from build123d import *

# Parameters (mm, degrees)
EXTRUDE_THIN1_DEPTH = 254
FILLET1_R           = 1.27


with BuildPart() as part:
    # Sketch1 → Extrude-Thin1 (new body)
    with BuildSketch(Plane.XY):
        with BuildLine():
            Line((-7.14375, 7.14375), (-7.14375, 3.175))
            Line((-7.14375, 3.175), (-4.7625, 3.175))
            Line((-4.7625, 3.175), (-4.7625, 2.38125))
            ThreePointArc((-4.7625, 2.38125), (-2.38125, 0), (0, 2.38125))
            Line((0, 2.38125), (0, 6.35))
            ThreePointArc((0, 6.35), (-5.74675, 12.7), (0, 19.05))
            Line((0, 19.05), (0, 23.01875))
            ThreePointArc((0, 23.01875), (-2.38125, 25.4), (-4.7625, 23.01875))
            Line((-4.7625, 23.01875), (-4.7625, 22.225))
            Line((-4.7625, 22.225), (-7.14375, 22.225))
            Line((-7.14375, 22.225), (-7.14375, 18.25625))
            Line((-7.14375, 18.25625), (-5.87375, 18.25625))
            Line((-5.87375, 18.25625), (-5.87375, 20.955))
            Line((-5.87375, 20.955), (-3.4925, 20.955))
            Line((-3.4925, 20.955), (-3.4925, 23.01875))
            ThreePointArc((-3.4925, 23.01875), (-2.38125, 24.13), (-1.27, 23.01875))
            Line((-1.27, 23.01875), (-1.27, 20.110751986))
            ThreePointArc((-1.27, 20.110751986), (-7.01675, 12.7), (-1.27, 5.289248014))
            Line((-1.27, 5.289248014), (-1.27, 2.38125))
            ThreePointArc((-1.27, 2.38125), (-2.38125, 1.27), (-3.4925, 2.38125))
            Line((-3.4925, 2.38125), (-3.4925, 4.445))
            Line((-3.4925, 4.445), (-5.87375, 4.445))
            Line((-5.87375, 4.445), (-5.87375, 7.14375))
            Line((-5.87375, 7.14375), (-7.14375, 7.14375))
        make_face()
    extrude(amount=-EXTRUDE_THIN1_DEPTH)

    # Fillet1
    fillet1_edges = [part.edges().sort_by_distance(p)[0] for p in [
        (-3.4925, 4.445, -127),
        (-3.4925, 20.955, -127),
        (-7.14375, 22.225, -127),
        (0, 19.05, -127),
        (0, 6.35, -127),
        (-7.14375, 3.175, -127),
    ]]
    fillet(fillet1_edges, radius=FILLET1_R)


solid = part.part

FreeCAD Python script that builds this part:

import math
import FreeCAD as App
import Part
import Sketcher
Q = App.Units.Quantity


def edges_at(feature, points):
    """Names of the edges that pass closest to the given points."""
    edges = feature.Shape.Edges
    near = lambda p: min(range(len(edges)), key=lambda i: edges[i].distToShape(Part.Vertex(*p))[0])
    return sorted({f"Edge{near(p) + 1}" for p in points})

doc = App.newDocument("Part")
body = doc.addObject("PartDesign::Body", "Body")

# Sketch on XY plane
sketch1 = body.newObject("Sketcher::SketchObject", "Sketch")
sketch1.AttachmentSupport = (doc.getObject("XY_Plane"), [""])
sketch1.MapMode = "FlatFace"
sketch1.addGeometry([
    Part.LineSegment(App.Vector(-7.14375, 7.14375, 0), App.Vector(-7.14375, 3.175, 0)),  # 0
    Part.LineSegment(App.Vector(-7.14375, 3.175, 0), App.Vector(-4.7625, 3.175, 0)),  # 1
    Part.LineSegment(App.Vector(-4.7625, 3.175, 0), App.Vector(-4.7625, 2.38125, 0)),  # 2
    Part.ArcOfCircle(Part.Circle(App.Vector(-2.38125, 2.38125, 0), App.Vector(0, 0, 1), 2.38125), math.radians(180), math.radians(360)),  # 3
    Part.LineSegment(App.Vector(0, 2.38125, 0), App.Vector(0, 6.35, 0)),  # 4
    Part.ArcOfCircle(Part.Circle(App.Vector(0.634912, 12.7, 0), App.Vector(0, 0, 1), 6.381662), math.radians(95.70981), math.radians(264.29019)),  # 5
    Part.LineSegment(App.Vector(0, 19.05, 0), App.Vector(0, 23.01875, 0)),  # 6
    Part.ArcOfCircle(Part.Circle(App.Vector(-2.38125, 23.01875, 0), App.Vector(0, 0, 1), 2.38125), math.radians(0), math.radians(180)),  # 7
    Part.LineSegment(App.Vector(-4.7625, 23.01875, 0), App.Vector(-4.7625, 22.225, 0)),  # 8
    Part.LineSegment(App.Vector(-4.7625, 22.225, 0), App.Vector(-7.14375, 22.225, 0)),  # 9
    Part.LineSegment(App.Vector(-7.14375, 22.225, 0), App.Vector(-7.14375, 18.25625, 0)),  # 10
    Part.LineSegment(App.Vector(-7.14375, 18.25625, 0), App.Vector(-5.87375, 18.25625, 0)),  # 11
    Part.LineSegment(App.Vector(-5.87375, 18.25625, 0), App.Vector(-5.87375, 20.955, 0)),  # 12
    Part.LineSegment(App.Vector(-5.87375, 20.955, 0), App.Vector(-3.4925, 20.955, 0)),  # 13
    Part.LineSegment(App.Vector(-3.4925, 20.955, 0), App.Vector(-3.4925, 23.01875, 0)),  # 14
    Part.ArcOfCircle(Part.Circle(App.Vector(-2.38125, 23.01875, 0), App.Vector(0, 0, 1), 1.11125), math.radians(0), math.radians(180)),  # 15
    Part.LineSegment(App.Vector(-1.27, 23.01875, 0), App.Vector(-1.27, 20.110752, 0)),  # 16
    Part.ArcOfCircle(Part.Circle(App.Vector(0.634912, 12.7, 0), App.Vector(0, 0, 1), 7.651662), math.radians(104.415627), math.radians(255.584373)),  # 17
    Part.LineSegment(App.Vector(-1.27, 5.289248, 0), App.Vector(-1.27, 2.38125, 0)),  # 18
    Part.ArcOfCircle(Part.Circle(App.Vector(-2.38125, 2.38125, 0), App.Vector(0, 0, 1), 1.11125), math.radians(180), math.radians(360)),  # 19
    Part.LineSegment(App.Vector(-3.4925, 2.38125, 0), App.Vector(-3.4925, 4.445, 0)),  # 20
    Part.LineSegment(App.Vector(-3.4925, 4.445, 0), App.Vector(-5.87375, 4.445, 0)),  # 21
    Part.LineSegment(App.Vector(-5.87375, 4.445, 0), App.Vector(-5.87375, 7.14375, 0)),  # 22
    Part.LineSegment(App.Vector(-5.87375, 7.14375, 0), App.Vector(-7.14375, 7.14375, 0)),  # 23
], False)
sketch1.addConstraint([
    Sketcher.Constraint("Coincident", 0, 2, 1, 1),
    Sketcher.Constraint("Coincident", 1, 2, 2, 1),
    Sketcher.Constraint("Tangent", 2, 2, 3, 1),
    Sketcher.Constraint("Tangent", 3, 2, 4, 1),
    Sketcher.Constraint("Coincident", 4, 2, 5, 2),
    Sketcher.Constraint("Coincident", 5, 1, 6, 1),
    Sketcher.Constraint("Tangent", 6, 2, 7, 1),
    Sketcher.Constraint("Tangent", 7, 2, 8, 1),
    Sketcher.Constraint("Coincident", 8, 2, 9, 1),
    Sketcher.Constraint("Coincident", 9, 2, 10, 1),
    Sketcher.Constraint("Coincident", 10, 2, 11, 1),
    Sketcher.Constraint("Coincident", 11, 2, 12, 1),
    Sketcher.Constraint("Coincident", 12, 2, 13, 1),
    Sketcher.Constraint("Coincident", 13, 2, 14, 1),
    Sketcher.Constraint("Tangent", 14, 2, 15, 2),
    Sketcher.Constraint("Tangent", 15, 1, 16, 1),
    Sketcher.Constraint("Coincident", 16, 2, 17, 1),
    Sketcher.Constraint("Coincident", 17, 2, 18, 1),
    Sketcher.Constraint("Tangent", 18, 2, 19, 2),
    Sketcher.Constraint("Tangent", 19, 1, 20, 1),
    Sketcher.Constraint("Coincident", 20, 2, 21, 1),
    Sketcher.Constraint("Coincident", 21, 2, 22, 1),
    Sketcher.Constraint("Coincident", 22, 2, 23, 1),
    Sketcher.Constraint("Coincident", 23, 2, 0, 1),
    Sketcher.Constraint("Vertical", 0),
    Sketcher.Constraint("Horizontal", 1),
    Sketcher.Constraint("Vertical", 2),
    Sketcher.Constraint("Vertical", 4),
    Sketcher.Constraint("Vertical", 6),
    Sketcher.Constraint("Vertical", 8),
    Sketcher.Constraint("Horizontal", 9),
    Sketcher.Constraint("Vertical", 10),
    Sketcher.Constraint("Horizontal", 11),
    Sketcher.Constraint("Vertical", 12),
    Sketcher.Constraint("Horizontal", 13),
    Sketcher.Constraint("Vertical", 14),
    Sketcher.Constraint("Vertical", 16),
    Sketcher.Constraint("Vertical", 18),
    Sketcher.Constraint("Vertical", 20),
    Sketcher.Constraint("Horizontal", 21),
    Sketcher.Constraint("Vertical", 22),
    Sketcher.Constraint("Horizontal", 23),
    Sketcher.Constraint("Coincident", 15, 3, 7, 3),
    Sketcher.Constraint("Coincident", 17, 3, 5, 3),
    Sketcher.Constraint("Coincident", 19, 3, 3, 3),
    Sketcher.Constraint("Equal", 3, 7),
    Sketcher.Constraint("Equal", 15, 19),
    Sketcher.Constraint("PointOnObject", 3, 2, -2),
    Sketcher.Constraint("PointOnObject", 5, 1, -2),
    Sketcher.Constraint("Vertical", 0, 2, 9, 2),
    Sketcher.Constraint("Vertical", 12, 2, 21, 2),
    Sketcher.Constraint("Equal", 9, 13),
    Sketcher.Constraint("Equal", 0, 4),
    Sketcher.Constraint("Equal", 4, 6),
    Sketcher.Constraint("Equal", 2, 8),
    Sketcher.Constraint("Equal", 6, 10),
    Sketcher.Constraint("Equal", 14, 20),
    Sketcher.Constraint("Radius", 3, Q("0.09375 in")),
    Sketcher.Constraint("DistanceX", 11, 1, 11, 2, Q("0.05 in")),
    Sketcher.Constraint("DistanceY", -1, 1, 5, 3, Q("0.5 in")),
    Sketcher.Constraint("DistanceY", 4, 2, 5, 1, Q("0.5 in")),
    Sketcher.Constraint("DistanceX", 1, 1, 1, 2, Q("0.09375 in")),
    Sketcher.Constraint("DistanceY", 0, 2, 0, 1, Q("0.15625 in")),
    Sketcher.Constraint("DistanceY", 2, 2, 2, 1, Q("0.03125 in")),
    Sketcher.Constraint("DistanceY", 12, 2, 8, 2, Q("0.05 in")),
    Sketcher.Constraint("DistanceY", 16, 2, 16, 1, Q("2.907998 mm")),
    Sketcher.Constraint("Radius", 5, Q("6.381662 mm")),
])
pad1 = body.newObject("PartDesign::Pad", "Pad")
pad1.Profile = sketch1
pad1.Length = Q("10 in")
pad1.Reversed = True
doc.recompute()

fillet = body.newObject("PartDesign::Fillet", "Fillet")
fillet.Base = (pad1, edges_at(pad1, [
    (-3.493, 4.445, -127),
    (-3.493, 20.955, -127),
    (-7.144, 22.225, -127),
    (0, 19.05, -127),
    (0, 6.35, -127),
    (-7.144, 3.175, -127),
]))
fillet.Radius = Q("0.05 in")

doc.recompute()
